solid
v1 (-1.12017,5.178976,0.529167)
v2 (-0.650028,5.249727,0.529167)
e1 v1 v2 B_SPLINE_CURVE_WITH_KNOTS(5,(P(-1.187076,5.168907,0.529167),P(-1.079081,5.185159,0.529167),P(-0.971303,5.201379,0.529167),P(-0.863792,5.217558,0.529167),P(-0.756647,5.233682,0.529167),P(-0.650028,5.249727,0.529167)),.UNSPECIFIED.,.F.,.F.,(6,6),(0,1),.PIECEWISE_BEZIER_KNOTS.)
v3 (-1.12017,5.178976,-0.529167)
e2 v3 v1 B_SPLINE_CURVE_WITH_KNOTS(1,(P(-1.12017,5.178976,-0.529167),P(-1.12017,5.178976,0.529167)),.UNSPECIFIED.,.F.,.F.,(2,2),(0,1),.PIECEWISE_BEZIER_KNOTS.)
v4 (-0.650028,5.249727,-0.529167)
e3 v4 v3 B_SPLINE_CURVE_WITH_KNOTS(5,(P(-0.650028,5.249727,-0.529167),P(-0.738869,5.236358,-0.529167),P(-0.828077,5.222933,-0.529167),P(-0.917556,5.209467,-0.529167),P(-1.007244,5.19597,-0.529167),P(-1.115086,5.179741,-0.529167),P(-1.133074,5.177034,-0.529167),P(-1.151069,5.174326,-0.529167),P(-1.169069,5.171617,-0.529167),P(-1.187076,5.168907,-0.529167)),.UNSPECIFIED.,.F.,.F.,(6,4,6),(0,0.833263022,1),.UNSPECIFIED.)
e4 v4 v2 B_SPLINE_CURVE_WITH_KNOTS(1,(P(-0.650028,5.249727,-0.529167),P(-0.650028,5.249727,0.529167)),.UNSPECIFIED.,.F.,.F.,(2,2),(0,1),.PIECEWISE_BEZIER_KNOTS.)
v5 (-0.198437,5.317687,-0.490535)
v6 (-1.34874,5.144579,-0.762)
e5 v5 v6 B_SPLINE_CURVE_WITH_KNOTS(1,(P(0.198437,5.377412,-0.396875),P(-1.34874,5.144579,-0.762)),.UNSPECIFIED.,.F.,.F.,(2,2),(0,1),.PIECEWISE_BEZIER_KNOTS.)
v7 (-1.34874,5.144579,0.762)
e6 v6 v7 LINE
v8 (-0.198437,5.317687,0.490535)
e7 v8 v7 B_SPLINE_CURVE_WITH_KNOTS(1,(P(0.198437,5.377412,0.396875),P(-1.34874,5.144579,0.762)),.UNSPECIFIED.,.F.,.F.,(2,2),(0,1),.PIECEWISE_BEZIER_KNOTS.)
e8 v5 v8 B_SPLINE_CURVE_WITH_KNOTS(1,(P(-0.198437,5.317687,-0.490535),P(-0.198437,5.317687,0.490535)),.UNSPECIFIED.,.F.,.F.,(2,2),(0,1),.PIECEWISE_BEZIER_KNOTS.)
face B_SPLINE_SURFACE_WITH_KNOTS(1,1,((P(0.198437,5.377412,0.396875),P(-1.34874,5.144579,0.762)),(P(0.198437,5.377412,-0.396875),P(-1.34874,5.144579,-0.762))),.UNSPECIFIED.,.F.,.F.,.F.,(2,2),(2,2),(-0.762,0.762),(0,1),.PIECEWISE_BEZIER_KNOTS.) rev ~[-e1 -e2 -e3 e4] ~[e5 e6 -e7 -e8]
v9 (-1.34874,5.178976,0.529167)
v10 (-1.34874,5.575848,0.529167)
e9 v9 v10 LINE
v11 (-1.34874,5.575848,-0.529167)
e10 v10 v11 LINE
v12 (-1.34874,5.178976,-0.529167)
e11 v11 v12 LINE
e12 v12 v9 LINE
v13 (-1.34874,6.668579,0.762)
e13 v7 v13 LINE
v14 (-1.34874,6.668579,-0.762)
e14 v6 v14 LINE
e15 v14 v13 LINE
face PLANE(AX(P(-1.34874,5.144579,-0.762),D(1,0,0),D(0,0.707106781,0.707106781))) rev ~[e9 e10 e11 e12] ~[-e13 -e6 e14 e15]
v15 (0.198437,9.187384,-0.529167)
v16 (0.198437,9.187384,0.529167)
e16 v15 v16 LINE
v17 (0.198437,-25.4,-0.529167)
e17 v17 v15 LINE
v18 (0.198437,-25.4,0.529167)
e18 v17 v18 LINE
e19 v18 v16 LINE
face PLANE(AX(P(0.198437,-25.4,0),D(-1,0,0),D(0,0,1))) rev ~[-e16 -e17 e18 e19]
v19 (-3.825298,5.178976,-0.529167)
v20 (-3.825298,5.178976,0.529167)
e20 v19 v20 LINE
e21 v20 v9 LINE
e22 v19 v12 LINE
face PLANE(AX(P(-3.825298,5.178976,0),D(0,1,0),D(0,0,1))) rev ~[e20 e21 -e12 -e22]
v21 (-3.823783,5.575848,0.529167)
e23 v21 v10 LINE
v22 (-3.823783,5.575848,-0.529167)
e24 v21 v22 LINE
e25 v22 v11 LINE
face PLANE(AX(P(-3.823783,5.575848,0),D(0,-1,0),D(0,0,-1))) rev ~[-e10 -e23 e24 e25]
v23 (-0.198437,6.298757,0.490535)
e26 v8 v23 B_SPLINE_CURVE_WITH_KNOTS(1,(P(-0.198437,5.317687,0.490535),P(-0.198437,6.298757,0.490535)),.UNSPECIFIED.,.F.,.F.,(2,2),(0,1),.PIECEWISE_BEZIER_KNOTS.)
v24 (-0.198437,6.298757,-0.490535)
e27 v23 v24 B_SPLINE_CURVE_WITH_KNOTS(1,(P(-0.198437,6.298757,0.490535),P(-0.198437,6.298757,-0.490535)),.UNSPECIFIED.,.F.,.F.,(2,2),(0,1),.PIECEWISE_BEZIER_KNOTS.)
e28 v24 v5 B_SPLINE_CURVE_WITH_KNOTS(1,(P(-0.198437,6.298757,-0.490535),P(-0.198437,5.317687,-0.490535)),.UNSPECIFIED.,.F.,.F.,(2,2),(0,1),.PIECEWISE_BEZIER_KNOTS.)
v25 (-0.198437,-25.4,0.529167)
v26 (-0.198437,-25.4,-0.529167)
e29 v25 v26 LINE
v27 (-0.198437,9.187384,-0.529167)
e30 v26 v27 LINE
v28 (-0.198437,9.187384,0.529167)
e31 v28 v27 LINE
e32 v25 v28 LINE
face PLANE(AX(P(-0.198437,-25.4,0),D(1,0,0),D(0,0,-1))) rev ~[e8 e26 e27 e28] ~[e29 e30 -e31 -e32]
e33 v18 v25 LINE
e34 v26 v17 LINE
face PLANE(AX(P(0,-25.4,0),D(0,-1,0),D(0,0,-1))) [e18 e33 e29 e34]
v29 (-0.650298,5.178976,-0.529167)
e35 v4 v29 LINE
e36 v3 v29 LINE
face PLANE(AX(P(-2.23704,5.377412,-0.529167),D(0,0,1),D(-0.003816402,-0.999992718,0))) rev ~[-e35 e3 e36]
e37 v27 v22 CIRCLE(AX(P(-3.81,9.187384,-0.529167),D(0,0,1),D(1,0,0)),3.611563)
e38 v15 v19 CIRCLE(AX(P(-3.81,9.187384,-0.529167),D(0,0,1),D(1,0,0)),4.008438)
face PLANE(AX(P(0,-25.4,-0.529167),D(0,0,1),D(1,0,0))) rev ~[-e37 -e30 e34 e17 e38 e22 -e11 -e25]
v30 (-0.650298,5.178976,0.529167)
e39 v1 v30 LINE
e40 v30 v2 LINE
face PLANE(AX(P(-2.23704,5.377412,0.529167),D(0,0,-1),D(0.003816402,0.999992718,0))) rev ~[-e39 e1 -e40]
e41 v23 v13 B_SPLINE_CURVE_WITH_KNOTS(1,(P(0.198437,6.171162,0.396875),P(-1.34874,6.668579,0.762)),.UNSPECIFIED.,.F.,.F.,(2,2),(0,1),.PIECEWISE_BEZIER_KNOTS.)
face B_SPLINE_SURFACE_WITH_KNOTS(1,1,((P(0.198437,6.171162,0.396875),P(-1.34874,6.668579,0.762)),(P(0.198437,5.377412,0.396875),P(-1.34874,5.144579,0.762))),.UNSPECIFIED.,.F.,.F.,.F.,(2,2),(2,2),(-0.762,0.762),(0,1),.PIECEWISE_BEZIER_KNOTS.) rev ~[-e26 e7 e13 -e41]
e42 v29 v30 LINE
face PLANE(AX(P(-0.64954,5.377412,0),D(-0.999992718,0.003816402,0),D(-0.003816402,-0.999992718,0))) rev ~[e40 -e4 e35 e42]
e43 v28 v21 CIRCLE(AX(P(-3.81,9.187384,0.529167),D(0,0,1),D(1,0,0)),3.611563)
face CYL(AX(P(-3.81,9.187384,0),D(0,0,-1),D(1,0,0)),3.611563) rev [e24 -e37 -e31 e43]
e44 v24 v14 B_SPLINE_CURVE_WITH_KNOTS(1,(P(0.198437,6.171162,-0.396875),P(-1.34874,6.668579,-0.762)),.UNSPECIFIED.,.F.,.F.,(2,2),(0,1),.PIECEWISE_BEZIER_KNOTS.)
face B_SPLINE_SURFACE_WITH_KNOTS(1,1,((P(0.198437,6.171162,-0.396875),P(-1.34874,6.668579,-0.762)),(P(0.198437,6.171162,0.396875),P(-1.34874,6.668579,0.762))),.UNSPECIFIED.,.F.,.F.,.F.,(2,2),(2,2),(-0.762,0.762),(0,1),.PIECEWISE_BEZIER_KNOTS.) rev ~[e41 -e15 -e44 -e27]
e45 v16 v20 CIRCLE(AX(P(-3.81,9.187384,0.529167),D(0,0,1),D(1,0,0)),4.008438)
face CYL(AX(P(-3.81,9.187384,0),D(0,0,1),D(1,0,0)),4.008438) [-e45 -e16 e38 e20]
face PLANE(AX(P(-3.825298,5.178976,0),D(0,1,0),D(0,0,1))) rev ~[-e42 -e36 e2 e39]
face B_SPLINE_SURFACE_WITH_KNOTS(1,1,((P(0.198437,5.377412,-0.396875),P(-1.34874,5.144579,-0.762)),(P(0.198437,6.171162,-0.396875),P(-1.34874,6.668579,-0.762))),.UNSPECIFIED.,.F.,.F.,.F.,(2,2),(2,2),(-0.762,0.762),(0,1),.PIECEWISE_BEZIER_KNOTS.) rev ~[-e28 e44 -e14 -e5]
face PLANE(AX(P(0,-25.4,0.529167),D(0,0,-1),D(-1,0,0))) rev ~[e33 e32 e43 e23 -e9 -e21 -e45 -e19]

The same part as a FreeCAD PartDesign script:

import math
import FreeCAD as App
import Part
import Sketcher

V = App.Vector
Q = App.Units.Quantity

doc = App.newDocument("Part")
body = doc.addObject("PartDesign::Body", "Body")

# Sketch on YZ plane
sketch1 = body.newObject("Sketcher::SketchObject", "Sketch")
sketch1.AttachmentSupport = (doc.getObject("YZ_Plane"), [""])
sketch1.MapMode = "FlatFace"
sketch1.AttachmentOffset = App.Placement(V(0, 0, 0.198437), App.Rotation())
sketch1.addGeometry(Part.LineSegment(V(5.4, 0.4, 0), V(5.4, -0.4, 0)), False)
sketch1.addGeometry(Part.LineSegment(V(5.4, -0.4, 0), V(6.2, -0.4, 0)), False)
sketch1.addGeometry(Part.LineSegment(V(6.2, -0.4, 0), V(6.2, 0.4, 0)), False)
sketch1.addGeometry(Part.LineSegment(V(6.2, 0.4, 0), V(5.4, 0.4, 0)), False)
sketch1.addConstraint(Sketcher.Constraint("Coincident", 0, 2, 1, 1))
sketch1.addConstraint(Sketcher.Constraint("Coincident", 1, 2, 2, 1))
sketch1.addConstraint(Sketcher.Constraint("Coincident", 2, 2, 3, 1))
sketch1.addConstraint(Sketcher.Constraint("Coincident", 3, 2, 0, 1))
sketch1.addConstraint(Sketcher.Constraint("Vertical", 0))
sketch1.addConstraint(Sketcher.Constraint("Horizontal", 1))
sketch1.addConstraint(Sketcher.Constraint("Vertical", 2))
sketch1.addConstraint(Sketcher.Constraint("Horizontal", 3))
sketch1.addConstraint(Sketcher.Constraint("Equal", 3, 0))
sketch1.addConstraint(Sketcher.Constraint("DistanceX", 1, 1, 1, 2, Q("0.03125 in")))
sketch1.addConstraint(Sketcher.Constraint("DistanceY", 0, 2, -1, 1, Q("0.015625 in")))
sketch1.addConstraint(Sketcher.Constraint("DistanceX", -1, 1, 0, 2, 5.377412))

# Sketch on YZ plane
sketch2 = body.newObject("Sketcher::SketchObject", "Sketch001")
sketch2.AttachmentSupport = (doc.getObject("YZ_Plane"), [""])
sketch2.MapMode = "FlatFace"
sketch2.AttachmentOffset = App.Placement(V(0, 0, -0.0531 * 25.4), App.Rotation())
sketch2.addGeometry(Part.LineSegment(V(5.1, 0.8, 0), V(5.1, -0.8, 0)), False)
sketch2.addGeometry(Part.LineSegment(V(5.1, -0.8, 0), V(6.7, -0.8, 0)), False)
sketch2.addGeometry(Part.LineSegment(V(6.7, -0.8, 0), V(6.7, 0.8, 0)), False)
sketch2.addGeometry(Part.LineSegment(V(6.7, 0.8, 0), V(5.1, 0.8, 0)), False)
sketch2.addConstraint(Sketcher.Constraint("Coincident", 0, 2, 1, 1))
sketch2.addConstraint(Sketcher.Constraint("Coincident", 1, 2, 2, 1))
sketch2.addConstraint(Sketcher.Constraint("Coincident", 2, 2, 3, 1))
sketch2.addConstraint(Sketcher.Constraint("Coincident", 3, 2, 0, 1))
sketch2.addConstraint(Sketcher.Constraint("Vertical", 0))
sketch2.addConstraint(Sketcher.Constraint("Horizontal", 1))
sketch2.addConstraint(Sketcher.Constraint("Vertical", 2))
sketch2.addConstraint(Sketcher.Constraint("Horizontal", 3))
sketch2.addConstraint(Sketcher.Constraint("Equal", 3, 0))
sketch2.addConstraint(Sketcher.Constraint("DistanceX", 1, 1, 1, 2, Q("0.06 in")))
sketch2.addConstraint(Sketcher.Constraint("DistanceY", 0, 2, -1, 1, Q("0.03 in")))
sketch2.addConstraint(Sketcher.Constraint("DistanceX", -1, 1, 0, 2, 5.144579))

additiveloft = body.newObject("PartDesign::AdditiveLoft", "AdditiveLoft")
additiveloft.Profile = sketch1
additiveloft.Sections = [sketch2]

# Sketch on XZ plane
sketch3 = body.newObject("Sketcher::SketchObject", "Sketch002")
sketch3.AttachmentSupport = (doc.getObject("XZ_Plane"), [""])
sketch3.MapMode = "FlatFace"
sketch3.AttachmentOffset = App.Placement(V(0, 0, 1 * 25.4), App.Rotation())
sketch3.addGeometry(Part.LineSegment(V(-0.2, 0.53, 0), V(-0.2, -0.53, 0)), False)
sketch3.addGeometry(Part.LineSegment(V(-0.2, -0.53, 0), V(0.2, -0.53, 0)), False)
sketch3.addGeometry(Part.LineSegment(V(0.2, -0.53, 0), V(0.2, 0.53, 0)), False)
sketch3.addGeometry(Part.LineSegment(V(0.2, 0.53, 0), V(-0.2, 0.53, 0)), False)
sketch3.addConstraint(Sketcher.Constraint("Coincident", 0, 2, 1, 1))
sketch3.addConstraint(Sketcher.Constraint("Coincident", 1, 2, 2, 1))
sketch3.addConstraint(Sketcher.Constraint("Coincident", 2, 2, 3, 1))
sketch3.addConstraint(Sketcher.Constraint("Coincident", 3, 2, 0, 1))
sketch3.addConstraint(Sketcher.Constraint("Vertical", 0))
sketch3.addConstraint(Sketcher.Constraint("Horizontal", 1))
sketch3.addConstraint(Sketcher.Constraint("Vertical", 2))
sketch3.addConstraint(Sketcher.Constraint("Horizontal", 3))
sketch3.addConstraint(Sketcher.Constraint("Symmetric", 0, 2, 2, 2, -1, 1))
sketch3.addConstraint(Sketcher.Constraint("DistanceX", 1, 1, 1, 2, Q("0.015625 in")))
sketch3.addConstraint(Sketcher.Constraint("DistanceY", 0, 2, 0, 1, 1.058333))

# Sketch on XY plane
sketch4 = body.newObject("Sketcher::SketchObject", "Sketch003")
sketch4.AttachmentSupport = (doc.getObject("XY_Plane"), [""])
sketch4.MapMode = "FlatFace"
sketch4.addGeometry(Part.LineSegment(V(0, -25.4, 0), V(0, 9.2, 0)), False)
sketch4.addGeometry(Part.ArcOfCircle(Part.Circle(V(-3.8, 9.2, 0), V(0, 0, 1), 3.8), math.radians(0), math.radians(270)), False)
sketch4.addGeometry(Part.LineSegment(V(-3.8, 5.4, 0), V(-0.6, 5.4, 0)), False)
sketch4.addConstraint(Sketcher.Constraint("Tangent", 0, 2, 1, 1))
sketch4.addConstraint(Sketcher.Constraint("Coincident", 1, 2, 2, 1))
sketch4.addConstraint(Sketcher.Constraint("Vertical", 0))
sketch4.addConstraint(Sketcher.Constraint("Horizontal", 2))
sketch4.addConstraint(Sketcher.Constraint("PointOnObject", 0, 1, -2))
sketch4.addConstraint(Sketcher.Constraint("Radius", 1, Q("0.15 in")))
sketch4.addConstraint(Sketcher.Constraint("DistanceY", 0, 1, -1, 1, Q("1 in")))
sketch4.addConstraint(Sketcher.Constraint("DistanceX", 2, 1, 2, 2, Q("0.125 in")))
sketch4.addConstraint(Sketcher.Constraint("DistanceY", 0, 1, 0, 2, 34.587384))
sketch4.addConstraint(Sketcher.Constraint("DistanceX", 1, 2, -1, 1, 3.82454))
doc.recompute()

additivepipe = body.newObject("PartDesign::AdditivePipe", "AdditivePipe")
additivepipe.Profile = sketch3
additivepipe.Spine = (sketch4, ["Edge1", "Edge2", "Edge3"])

doc.recompute()
